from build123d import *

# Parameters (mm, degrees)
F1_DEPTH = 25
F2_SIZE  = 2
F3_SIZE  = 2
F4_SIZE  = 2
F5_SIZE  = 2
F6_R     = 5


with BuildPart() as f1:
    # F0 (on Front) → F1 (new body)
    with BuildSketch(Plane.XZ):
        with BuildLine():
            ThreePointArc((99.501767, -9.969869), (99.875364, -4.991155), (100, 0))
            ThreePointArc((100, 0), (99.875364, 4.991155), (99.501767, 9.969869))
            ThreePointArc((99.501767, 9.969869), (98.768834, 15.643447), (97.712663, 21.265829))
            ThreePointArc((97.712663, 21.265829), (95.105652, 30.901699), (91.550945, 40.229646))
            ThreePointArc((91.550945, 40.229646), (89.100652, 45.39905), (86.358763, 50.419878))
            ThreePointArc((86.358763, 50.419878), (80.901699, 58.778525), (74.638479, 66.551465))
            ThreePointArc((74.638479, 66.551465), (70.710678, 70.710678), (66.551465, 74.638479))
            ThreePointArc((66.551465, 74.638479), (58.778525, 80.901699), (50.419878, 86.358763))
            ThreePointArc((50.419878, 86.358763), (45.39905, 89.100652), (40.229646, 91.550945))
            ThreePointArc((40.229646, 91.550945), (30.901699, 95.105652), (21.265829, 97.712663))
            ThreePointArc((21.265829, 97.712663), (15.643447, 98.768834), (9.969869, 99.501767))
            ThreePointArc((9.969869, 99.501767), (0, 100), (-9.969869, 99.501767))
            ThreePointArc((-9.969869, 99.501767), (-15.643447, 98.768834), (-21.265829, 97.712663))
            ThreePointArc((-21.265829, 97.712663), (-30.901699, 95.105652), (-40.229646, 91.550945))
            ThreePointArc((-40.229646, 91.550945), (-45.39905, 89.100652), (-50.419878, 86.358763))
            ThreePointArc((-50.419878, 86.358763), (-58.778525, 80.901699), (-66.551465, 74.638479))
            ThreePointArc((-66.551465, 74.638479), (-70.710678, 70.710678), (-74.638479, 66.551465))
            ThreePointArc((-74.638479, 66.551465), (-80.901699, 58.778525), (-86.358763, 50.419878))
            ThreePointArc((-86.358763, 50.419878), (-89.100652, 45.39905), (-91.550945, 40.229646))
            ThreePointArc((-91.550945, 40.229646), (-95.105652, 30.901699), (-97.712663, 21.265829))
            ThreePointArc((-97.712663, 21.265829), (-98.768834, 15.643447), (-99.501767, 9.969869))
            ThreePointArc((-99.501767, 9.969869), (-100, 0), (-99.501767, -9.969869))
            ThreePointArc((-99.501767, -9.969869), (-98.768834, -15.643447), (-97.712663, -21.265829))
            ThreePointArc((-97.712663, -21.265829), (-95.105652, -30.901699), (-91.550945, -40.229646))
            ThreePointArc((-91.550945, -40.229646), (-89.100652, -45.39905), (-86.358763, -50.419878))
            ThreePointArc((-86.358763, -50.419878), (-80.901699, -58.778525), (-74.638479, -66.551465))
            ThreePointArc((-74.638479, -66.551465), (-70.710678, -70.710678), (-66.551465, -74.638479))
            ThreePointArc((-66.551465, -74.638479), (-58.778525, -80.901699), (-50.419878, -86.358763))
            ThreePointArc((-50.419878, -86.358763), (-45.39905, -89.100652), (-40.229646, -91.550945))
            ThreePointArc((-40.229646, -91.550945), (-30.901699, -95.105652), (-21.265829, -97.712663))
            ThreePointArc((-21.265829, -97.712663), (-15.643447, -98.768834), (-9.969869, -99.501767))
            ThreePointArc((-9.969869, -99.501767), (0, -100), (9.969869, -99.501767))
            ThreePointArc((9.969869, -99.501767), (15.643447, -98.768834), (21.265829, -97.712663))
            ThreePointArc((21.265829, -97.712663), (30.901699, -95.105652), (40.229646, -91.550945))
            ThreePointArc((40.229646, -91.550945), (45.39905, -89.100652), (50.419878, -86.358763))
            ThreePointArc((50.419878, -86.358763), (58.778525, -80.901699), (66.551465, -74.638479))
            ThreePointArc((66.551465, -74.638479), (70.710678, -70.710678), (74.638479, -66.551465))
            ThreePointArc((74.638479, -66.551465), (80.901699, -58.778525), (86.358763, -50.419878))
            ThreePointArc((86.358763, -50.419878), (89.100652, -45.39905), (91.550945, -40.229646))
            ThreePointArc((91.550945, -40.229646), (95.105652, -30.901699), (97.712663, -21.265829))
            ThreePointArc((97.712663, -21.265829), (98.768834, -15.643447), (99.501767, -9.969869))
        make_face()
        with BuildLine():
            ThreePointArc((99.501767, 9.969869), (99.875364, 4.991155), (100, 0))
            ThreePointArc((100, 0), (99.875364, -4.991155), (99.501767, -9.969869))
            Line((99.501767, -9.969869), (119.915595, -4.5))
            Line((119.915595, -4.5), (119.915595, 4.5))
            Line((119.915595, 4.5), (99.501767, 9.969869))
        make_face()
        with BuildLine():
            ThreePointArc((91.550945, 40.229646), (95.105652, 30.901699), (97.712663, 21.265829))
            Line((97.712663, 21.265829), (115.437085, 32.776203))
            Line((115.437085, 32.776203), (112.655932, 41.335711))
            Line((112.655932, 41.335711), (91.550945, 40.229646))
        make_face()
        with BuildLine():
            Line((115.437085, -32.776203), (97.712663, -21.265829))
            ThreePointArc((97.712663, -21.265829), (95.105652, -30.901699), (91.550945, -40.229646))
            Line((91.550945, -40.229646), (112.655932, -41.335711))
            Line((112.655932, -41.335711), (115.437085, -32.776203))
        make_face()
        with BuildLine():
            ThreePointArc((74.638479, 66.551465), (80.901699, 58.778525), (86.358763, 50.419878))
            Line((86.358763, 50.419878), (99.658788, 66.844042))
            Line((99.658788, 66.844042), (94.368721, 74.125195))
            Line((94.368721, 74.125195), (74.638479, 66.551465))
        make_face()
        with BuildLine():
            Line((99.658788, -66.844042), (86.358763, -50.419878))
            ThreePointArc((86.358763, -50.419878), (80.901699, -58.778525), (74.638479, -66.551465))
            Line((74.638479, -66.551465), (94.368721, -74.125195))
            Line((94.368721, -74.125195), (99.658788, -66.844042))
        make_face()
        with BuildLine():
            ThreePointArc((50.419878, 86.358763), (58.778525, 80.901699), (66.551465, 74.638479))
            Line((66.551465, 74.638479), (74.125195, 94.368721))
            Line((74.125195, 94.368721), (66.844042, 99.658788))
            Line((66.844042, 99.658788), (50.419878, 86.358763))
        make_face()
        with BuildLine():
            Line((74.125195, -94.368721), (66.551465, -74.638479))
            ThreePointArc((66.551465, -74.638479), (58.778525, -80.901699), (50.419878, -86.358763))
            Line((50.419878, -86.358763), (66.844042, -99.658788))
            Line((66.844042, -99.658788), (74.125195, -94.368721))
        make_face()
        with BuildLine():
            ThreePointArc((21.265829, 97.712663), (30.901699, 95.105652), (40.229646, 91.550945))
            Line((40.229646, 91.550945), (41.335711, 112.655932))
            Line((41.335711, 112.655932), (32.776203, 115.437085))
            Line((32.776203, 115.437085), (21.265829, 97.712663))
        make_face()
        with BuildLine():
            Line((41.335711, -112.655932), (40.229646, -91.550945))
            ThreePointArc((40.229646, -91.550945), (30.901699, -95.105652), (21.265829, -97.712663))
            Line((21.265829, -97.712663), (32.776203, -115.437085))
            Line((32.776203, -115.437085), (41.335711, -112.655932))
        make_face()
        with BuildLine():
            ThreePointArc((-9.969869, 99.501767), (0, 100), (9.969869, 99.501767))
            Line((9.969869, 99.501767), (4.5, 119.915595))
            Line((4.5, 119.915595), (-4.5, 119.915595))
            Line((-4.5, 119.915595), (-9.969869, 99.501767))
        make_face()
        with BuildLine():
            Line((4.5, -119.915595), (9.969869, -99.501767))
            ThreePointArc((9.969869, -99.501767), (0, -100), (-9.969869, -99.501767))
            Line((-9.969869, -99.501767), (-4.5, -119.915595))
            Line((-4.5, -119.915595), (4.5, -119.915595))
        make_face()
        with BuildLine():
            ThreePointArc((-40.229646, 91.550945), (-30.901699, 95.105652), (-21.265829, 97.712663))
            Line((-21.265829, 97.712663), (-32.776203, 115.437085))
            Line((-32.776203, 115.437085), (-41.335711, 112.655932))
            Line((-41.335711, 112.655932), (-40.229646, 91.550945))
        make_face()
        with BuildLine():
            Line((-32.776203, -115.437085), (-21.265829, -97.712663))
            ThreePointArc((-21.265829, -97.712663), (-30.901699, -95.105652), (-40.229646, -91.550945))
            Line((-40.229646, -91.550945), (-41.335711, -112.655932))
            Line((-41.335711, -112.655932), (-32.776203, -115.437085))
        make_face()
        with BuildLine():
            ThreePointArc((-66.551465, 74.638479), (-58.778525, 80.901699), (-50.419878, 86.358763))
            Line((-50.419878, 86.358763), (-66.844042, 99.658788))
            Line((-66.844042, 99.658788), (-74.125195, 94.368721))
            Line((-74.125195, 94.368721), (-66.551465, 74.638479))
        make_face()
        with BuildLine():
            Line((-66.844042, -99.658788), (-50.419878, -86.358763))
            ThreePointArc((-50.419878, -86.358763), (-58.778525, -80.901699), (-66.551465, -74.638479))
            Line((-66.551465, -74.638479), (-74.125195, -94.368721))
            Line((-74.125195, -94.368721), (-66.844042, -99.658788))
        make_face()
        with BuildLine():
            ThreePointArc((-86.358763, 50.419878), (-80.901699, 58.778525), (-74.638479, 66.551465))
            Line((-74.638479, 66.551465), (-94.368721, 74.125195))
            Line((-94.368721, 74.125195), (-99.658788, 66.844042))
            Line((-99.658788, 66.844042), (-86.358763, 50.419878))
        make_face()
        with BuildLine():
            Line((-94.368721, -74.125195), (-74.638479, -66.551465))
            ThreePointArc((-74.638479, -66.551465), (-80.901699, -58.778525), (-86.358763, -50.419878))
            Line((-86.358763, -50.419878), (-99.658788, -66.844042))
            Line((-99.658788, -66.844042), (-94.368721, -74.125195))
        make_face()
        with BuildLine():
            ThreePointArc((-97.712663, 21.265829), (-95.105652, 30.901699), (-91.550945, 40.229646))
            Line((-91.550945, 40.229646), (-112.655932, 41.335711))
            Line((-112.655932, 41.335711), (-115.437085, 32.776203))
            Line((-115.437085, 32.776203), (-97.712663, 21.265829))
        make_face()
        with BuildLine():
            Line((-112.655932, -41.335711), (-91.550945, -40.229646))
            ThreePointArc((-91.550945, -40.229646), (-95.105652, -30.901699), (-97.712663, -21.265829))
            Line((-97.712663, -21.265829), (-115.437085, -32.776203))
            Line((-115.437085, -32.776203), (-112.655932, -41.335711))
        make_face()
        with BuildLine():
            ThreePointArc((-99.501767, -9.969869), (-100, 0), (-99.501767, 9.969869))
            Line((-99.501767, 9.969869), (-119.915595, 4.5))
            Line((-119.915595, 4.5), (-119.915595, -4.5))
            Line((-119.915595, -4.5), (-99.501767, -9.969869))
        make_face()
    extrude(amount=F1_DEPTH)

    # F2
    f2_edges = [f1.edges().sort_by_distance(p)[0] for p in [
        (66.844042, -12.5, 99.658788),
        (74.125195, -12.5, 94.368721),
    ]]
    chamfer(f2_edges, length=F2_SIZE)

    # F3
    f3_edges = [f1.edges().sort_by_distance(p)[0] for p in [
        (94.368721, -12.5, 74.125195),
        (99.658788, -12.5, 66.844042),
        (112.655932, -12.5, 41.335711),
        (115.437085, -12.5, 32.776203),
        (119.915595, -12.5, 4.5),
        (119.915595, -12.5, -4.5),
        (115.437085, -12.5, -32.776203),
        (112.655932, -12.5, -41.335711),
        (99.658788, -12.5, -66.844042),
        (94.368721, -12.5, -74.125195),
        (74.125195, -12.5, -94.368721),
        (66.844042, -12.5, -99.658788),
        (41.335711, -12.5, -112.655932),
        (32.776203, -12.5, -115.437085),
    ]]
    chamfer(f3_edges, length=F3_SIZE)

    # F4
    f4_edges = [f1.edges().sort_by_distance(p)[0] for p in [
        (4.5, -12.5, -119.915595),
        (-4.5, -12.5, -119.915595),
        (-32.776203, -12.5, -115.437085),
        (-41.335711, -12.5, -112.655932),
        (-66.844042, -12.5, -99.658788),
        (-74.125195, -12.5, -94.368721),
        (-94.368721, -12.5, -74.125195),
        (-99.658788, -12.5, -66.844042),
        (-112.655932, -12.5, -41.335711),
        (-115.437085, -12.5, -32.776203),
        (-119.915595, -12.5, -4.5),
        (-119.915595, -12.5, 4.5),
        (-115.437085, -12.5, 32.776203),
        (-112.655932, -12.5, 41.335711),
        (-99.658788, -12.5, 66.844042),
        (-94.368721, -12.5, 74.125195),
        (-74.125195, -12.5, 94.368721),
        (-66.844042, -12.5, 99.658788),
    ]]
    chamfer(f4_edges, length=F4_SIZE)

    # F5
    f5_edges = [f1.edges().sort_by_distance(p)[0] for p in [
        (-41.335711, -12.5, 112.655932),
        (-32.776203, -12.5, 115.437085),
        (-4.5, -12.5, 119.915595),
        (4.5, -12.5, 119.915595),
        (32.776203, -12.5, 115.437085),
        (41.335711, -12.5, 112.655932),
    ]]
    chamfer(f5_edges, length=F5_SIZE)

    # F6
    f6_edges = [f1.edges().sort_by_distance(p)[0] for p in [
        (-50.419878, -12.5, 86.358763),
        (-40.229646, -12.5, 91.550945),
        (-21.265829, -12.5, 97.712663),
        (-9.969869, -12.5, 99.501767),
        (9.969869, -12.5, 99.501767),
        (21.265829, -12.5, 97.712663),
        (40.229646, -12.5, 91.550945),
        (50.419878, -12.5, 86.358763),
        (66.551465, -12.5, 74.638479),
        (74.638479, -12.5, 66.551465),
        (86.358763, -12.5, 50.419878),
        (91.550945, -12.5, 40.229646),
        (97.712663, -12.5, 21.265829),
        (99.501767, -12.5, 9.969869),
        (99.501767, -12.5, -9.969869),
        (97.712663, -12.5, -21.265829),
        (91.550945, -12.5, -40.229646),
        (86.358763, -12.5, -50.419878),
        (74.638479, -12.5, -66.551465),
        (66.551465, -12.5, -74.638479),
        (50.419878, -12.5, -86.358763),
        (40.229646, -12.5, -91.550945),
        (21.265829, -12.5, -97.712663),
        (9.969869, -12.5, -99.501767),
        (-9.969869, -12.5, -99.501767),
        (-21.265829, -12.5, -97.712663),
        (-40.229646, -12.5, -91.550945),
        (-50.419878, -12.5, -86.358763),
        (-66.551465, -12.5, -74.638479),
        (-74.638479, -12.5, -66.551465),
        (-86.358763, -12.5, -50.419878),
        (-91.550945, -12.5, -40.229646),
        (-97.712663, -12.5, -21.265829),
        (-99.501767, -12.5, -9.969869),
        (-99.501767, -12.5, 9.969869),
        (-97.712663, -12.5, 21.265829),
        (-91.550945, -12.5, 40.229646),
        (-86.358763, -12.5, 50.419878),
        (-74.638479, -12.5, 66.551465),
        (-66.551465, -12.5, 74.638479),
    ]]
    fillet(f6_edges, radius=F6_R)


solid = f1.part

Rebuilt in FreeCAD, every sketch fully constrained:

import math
import FreeCAD as App
import Part
import Sketcher

V = App.Vector
Q = App.Units.Quantity


def edges_at(feature, points):
    """Names of the edges that pass closest to the given points."""
    edges = feature.Shape.Edges
    near = lambda p: min(range(len(edges)), key=lambda i: edges[i].distToShape(Part.Vertex(*p))[0])
    return sorted({f"Edge{near(p) + 1}" for p in points})

doc = App.newDocument("Part")
params = doc.addObject("Spreadsheet::Sheet", "Params")
for row, (alias, value) in enumerate([
    ("sketch1_width", "9 mm"),
    ("sketch1_length", "8.999999 mm"),
    ("pad1_length", "25 mm"),
    ("chamfer_size", "2 mm"),
    ("chamfer2_size", "2 mm"),
    ("chamfer3_size", "2 mm"),
    ("chamfer4_size", "2 mm"),
    ("fillet_radius", "5 mm"),
], start=1):
    params.set(f"A{row}", alias)
    params.set(f"B{row}", "=" + value)
    params.setAlias(f"B{row}", alias)

body = doc.addObject("PartDesign::Body", "Body")

# Sketch on XZ plane
sketch1 = doc.addObject("Sketcher::SketchObject", "Sketch")
body.addObject(sketch1)
sketch1.AttachmentSupport = (doc.XZ_Plane, [""])
sketch1.MapMode = "FlatFace"
sketch1.addGeometry(Part.ArcOfCircle(Part.Circle(V(0.000135, 0.000024, 0), V(0, 0, 1), 99.999863), math.radians(5.721814), math.radians(12.278183)), False)
sketch1.addGeometry(Part.LineSegment(V(97.712663, 21.265829, 0), V(115.437085, 32.776203, 0)), False)
sketch1.addGeometry(Part.LineSegment(V(115.437085, 32.776203, 0), V(112.655932, 41.335711, 0)), False)
sketch1.addGeometry(Part.LineSegment(V(112.655932, 41.335711, 0), V(91.550945, 40.229646, 0)), False)
sketch1.addGeometry(Part.ArcOfCircle(Part.Circle(V(-0.000188, -0.000091, 0), V(0, 0, 1), 100.000208), math.radians(23.721824), math.radians(30.278171)), False)
sketch1.addGeometry(Part.LineSegment(V(86.358763, 50.419878, 0), V(99.658788, 66.844042, 0)), False)
sketch1.addGeometry(Part.LineSegment(V(99.658788, 66.844042, 0), V(94.368721, 74.125195, 0)), False)
sketch1.addGeometry(Part.LineSegment(V(94.368721, 74.125195, 0), V(74.638479, 66.551465, 0)), False)
sketch1.addGeometry(Part.ArcOfCircle(Part.Circle(V(-0.000161, -0.000161, 0), V(0, 0, 1), 100.000228), math.radians(41.721827), math.radians(48.278173)), False)
sketch1.addGeometry(Part.LineSegment(V(66.551465, 74.638479, 0), V(74.125195, 94.368721, 0)), False)
sketch1.addGeometry(Part.LineSegment(V(74.125195, 94.368721, 0), V(66.844042, 99.658788, 0)), False)
sketch1.addGeometry(Part.LineSegment(V(66.844042, 99.658788, 0), V(50.419878, 86.358763, 0)), False)
sketch1.addGeometry(Part.ArcOfCircle(Part.Circle(V(-0.000091, -0.000188, 0), V(0, 0, 1), 100.000208), math.radians(59.721829), math.radians(66.278176)), False)
sketch1.addGeometry(Part.LineSegment(V(40.229646, 91.550945, 0), V(41.335711, 112.655932, 0)), False)
sketch1.addGeometry(Part.LineSegment(V(41.335711, 112.655932, 0), V(32.776203, 115.437085, 0)), False)
sketch1.addGeometry(Part.LineSegment(V(32.776203, 115.437085, 0), V(21.265829, 97.712663, 0)), False)
sketch1.addGeometry(Part.ArcOfCircle(Part.Circle(V(0.000024, 0.000135, 0), V(0, 0, 1), 99.999863), math.radians(77.721817), math.radians(84.278186)), False)
sketch1.addGeometry(Part.LineSegment(V(9.969869, 99.501767, 0), V(4.5, 119.915595, 0)), False)
sketch1.addGeometry(Part.LineSegment(V(4.5, 119.915595, 0), V(-4.5, 119.915595, 0)), False)
sketch1.addGeometry(Part.LineSegment(V(-4.5, 119.915595, 0), V(-9.969869, 99.501767, 0)), False)
sketch1.addGeometry(Part.ArcOfCircle(Part.Circle(V(-0.000024, 0.000135, 0), V(0, 0, 1), 99.999863), math.radians(95.721814), math.radians(102.278183)), False)
sketch1.addGeometry(Part.LineSegment(V(-21.265829, 97.712663, 0), V(-32.776203, 115.437085, 0)), False)
sketch1.addGeometry(Part.LineSegment(V(-32.776203, 115.437085, 0), V(-41.335711, 112.655932, 0)), False)
sketch1.addGeometry(Part.LineSegment(V(-41.335711, 112.655932, 0), V(-40.229646, 91.550945, 0)), False)
sketch1.addGeometry(Part.ArcOfCircle(Part.Circle(V(0.000091, -0.000188, 0), V(0, 0, 1), 100.000208), math.radians(113.721824), math.radians(120.278171)), False)
sketch1.addGeometry(Part.LineSegment(V(-50.419878, 86.358763, 0), V(-66.844042, 99.658788, 0)), False)
sketch1.addGeometry(Part.LineSegment(V(-66.844042, 99.658788, 0), V(-74.125195, 94.368721, 0)), False)
sketch1.addGeometry(Part.LineSegment(V(-74.125195, 94.368721, 0), V(-66.551465, 74.638479, 0)), False)
sketch1.addGeometry(Part.ArcOfCircle(Part.Circle(V(0.000161, -0.000161, 0), V(0, 0, 1), 100.000228), math.radians(131.721827), math.radians(138.278173)), False)
sketch1.addGeometry(Part.LineSegment(V(-74.638479, 66.551465, 0), V(-94.368721, 74.125195, 0)), False)
sketch1.addGeometry(Part.LineSegment(V(-94.368721, 74.125195, 0), V(-99.658788, 66.844042, 0)), False)
sketch1.addGeometry(Part.LineSegment(V(-99.658788, 66.844042, 0), V(-86.358763, 50.419878, 0)), False)
sketch1.addGeometry(Part.ArcOfCircle(Part.Circle(V(0.000188, -0.000091, 0), V(0, 0, 1), 100.000208), math.radians(149.721829), math.radians(156.278176)), False)
sketch1.addGeometry(Part.LineSegment(V(-91.550945, 40.229646, 0), V(-112.655932, 41.335711, 0)), False)
sketch1.addGeometry(Part.LineSegment(V(-112.655932, 41.335711, 0), V(-115.437085, 32.776203, 0)), False)
sketch1.addGeometry(Part.LineSegment(V(-115.437085, 32.776203, 0), V(-97.712663, 21.265829, 0)), False)
sketch1.addGeometry(Part.ArcOfCircle(Part.Circle(V(-0.000135, 0.000024, 0), V(0, 0, 1), 99.999863), math.radians(167.721817), math.radians(174.278186)), False)
sketch1.addGeometry(Part.LineSegment(V(-99.501767, 9.969869, 0), V(-119.915595, 4.5, 0)), False)
sketch1.addGeometry(Part.LineSegment(V(-119.915595, 4.5, 0), V(-119.915595, -4.5, 0)), False)
sketch1.addGeometry(Part.LineSegment(V(-119.915595, -4.5, 0), V(-99.501767, -9.969869, 0)), False)
sketch1.addGeometry(Part.ArcOfCircle(Part.Circle(V(-0.000135, -0.000024, 0), V(0, 0, 1), 99.999863), math.radians(-174.278186), math.radians(-167.721817)), False)
sketch1.addGeometry(Part.LineSegment(V(-97.712663, -21.265829, 0), V(-115.437085, -32.776203, 0)), False)
sketch1.addGeometry(Part.LineSegment(V(-115.437085, -32.776203, 0), V(-112.655932, -41.335711, 0)), False)
sketch1.addGeometry(Part.LineSegment(V(-112.655932, -41.335711, 0), V(-91.550945, -40.229646, 0)), False)
sketch1.addGeometry(Part.ArcOfCircle(Part.Circle(V(0.000188, 0.000091, 0), V(0, 0, 1), 100.000208), math.radians(-156.278176), math.radians(-149.721829)), False)
sketch1.addGeometry(Part.LineSegment(V(-86.358763, -50.419878, 0), V(-99.658788, -66.844042, 0)), False)
sketch1.addGeometry(Part.LineSegment(V(-99.658788, -66.844042, 0), V(-94.368721, -74.125195, 0)), False)
sketch1.addGeometry(Part.LineSegment(V(-94.368721, -74.125195, 0), V(-74.638479, -66.551465, 0)), False)
sketch1.addGeometry(Part.ArcOfCircle(Part.Circle(V(0.000161, 0.000161, 0), V(0, 0, 1), 100.000228), math.radians(-138.278173), math.radians(-131.721827)), False)
sketch1.addGeometry(Part.LineSegment(V(-66.551465, -74.638479, 0), V(-74.125195, -94.368721, 0)), False)
sketch1.addGeometry(Part.LineSegment(V(-74.125195, -94.368721, 0), V(-66.844042, -99.658788, 0)), False)
sketch1.addGeometry(Part.LineSegment(V(-66.844042, -99.658788, 0), V(-50.419878, -86.358763, 0)), False)
sketch1.addGeometry(Part.ArcOfCircle(Part.Circle(V(0.000091, 0.000188, 0), V(0, 0, 1), 100.000208), math.radians(-120.278171), math.radians(-113.721824)), False)
sketch1.addGeometry(Part.LineSegment(V(-40.229646, -91.550945, 0), V(-41.335711, -112.655932, 0)), False)
sketch1.addGeometry(Part.LineSegment(V(-41.335711, -112.655932, 0), V(-32.776203, -115.437085, 0)), False)
sketch1.addGeometry(Part.LineSegment(V(-32.776203, -115.437085, 0), V(-21.265829, -97.712663, 0)), False)
sketch1.addGeometry(Part.ArcOfCircle(Part.Circle(V(-0.000024, -0.000135, 0), V(0, 0, 1), 99.999863), math.radians(-102.278183), math.radians(-95.721814)), False)
sketch1.addGeometry(Part.LineSegment(V(-9.969869, -99.501767, 0), V(-4.5, -119.915595, 0)), False)
sketch1.addGeometry(Part.LineSegment(V(-4.5, -119.915595, 0), V(4.5, -119.915595, 0)), False)
sketch1.addGeometry(Part.LineSegment(V(4.5, -119.915595, 0), V(9.969869, -99.501767, 0)), False)
sketch1.addGeometry(Part.ArcOfCircle(Part.Circle(V(0.000024, -0.000135, 0), V(0, 0, 1), 99.999863), math.radians(-84.278186), math.radians(-77.721817)), False)
sketch1.addGeometry(Part.LineSegment(V(21.265829, -97.712663, 0), V(32.776203, -115.437085, 0)), False)
sketch1.addGeometry(Part.LineSegment(V(32.776203, -115.437085, 0), V(41.335711, -112.655932, 0)), False)
sketch1.addGeometry(Part.LineSegment(V(41.335711, -112.655932, 0), V(40.229646, -91.550945, 0)), False)
sketch1.addGeometry(Part.ArcOfCircle(Part.Circle(V(-0.000091, 0.000188, 0), V(0, 0, 1), 100.000208), math.radians(-66.278176), math.radians(-59.721829)), False)
sketch1.addGeometry(Part.LineSegment(V(50.419878, -86.358763, 0), V(66.844042, -99.658788, 0)), False)
sketch1.addGeometry(Part.LineSegment(V(66.844042, -99.658788, 0), V(74.125195, -94.368721, 0)), False)
sketch1.addGeometry(Part.LineSegment(V(74.125195, -94.368721, 0), V(66.551465, -74.638479, 0)), False)
sketch1.addGeometry(Part.ArcOfCircle(Part.Circle(V(-0.000161, 0.000161, 0), V(0, 0, 1), 100.000228), math.radians(-48.278173), math.radians(-41.721827)), False)
sketch1.addGeometry(Part.LineSegment(V(74.638479, -66.551465, 0), V(94.368721, -74.125195, 0)), False)
sketch1.addGeometry(Part.LineSegment(V(94.368721, -74.125195, 0), V(99.658788, -66.844042, 0)), False)
sketch1.addGeometry(Part.LineSegment(V(99.658788, -66.844042, 0), V(86.358763, -50.419878, 0)), False)
sketch1.addGeometry(Part.ArcOfCircle(Part.Circle(V(-0.000188, 0.000091, 0), V(0, 0, 1), 100.000208), math.radians(-30.278171), math.radians(-23.721824)), False)
sketch1.addGeometry(Part.LineSegment(V(91.550945, -40.229646, 0), V(112.655932, -41.335711, 0)), False)
sketch1.addGeometry(Part.LineSegment(V(112.655932, -41.335711, 0), V(115.437085, -32.776203, 0)), False)
sketch1.addGeometry(Part.LineSegment(V(115.437085, -32.776203, 0), V(97.712663, -21.265829, 0)), False)
sketch1.addGeometry(Part.ArcOfCircle(Part.Circle(V(0.000135, -0.000024, 0), V(0, 0, 1), 99.999863), math.radians(-12.278183), math.radians(-5.721814)), False)
sketch1.addGeometry(Part.LineSegment(V(99.501767, -9.969869, 0), V(119.915595, -4.5, 0)), False)
sketch1.addGeometry(Part.LineSegment(V(119.915595, -4.5, 0), V(119.915595, 4.5, 0)), False)
sketch1.addGeometry(Part.LineSegment(V(119.915595, 4.5, 0), V(99.501767, 9.969869, 0)), False)
sketch1.addConstraint(Sketcher.Constraint("Coincident", 0, 2, 1, 1))
sketch1.addConstraint(Sketcher.Constraint("Coincident", 1, 2, 2, 1))
sketch1.addConstraint(Sketcher.Constraint("Coincident", 2, 2, 3, 1))
sketch1.addConstraint(Sketcher.Constraint("Coincident", 3, 2, 4, 1))
sketch1.addConstraint(Sketcher.Constraint("Coincident", 4, 2, 5, 1))
sketch1.addConstraint(Sketcher.Constraint("Coincident", 5, 2, 6, 1))
sketch1.addConstraint(Sketcher.Constraint("Coincident", 6, 2, 7, 1))
sketch1.addConstraint(Sketcher.Constraint("Coincident", 7, 2, 8, 1))
sketch1.addConstraint(Sketcher.Constraint("Coincident", 8, 2, 9, 1))
sketch1.addConstraint(Sketcher.Constraint("Coincident", 9, 2, 10, 1))
sketch1.addConstraint(Sketcher.Constraint("Coincident", 10, 2, 11, 1))
sketch1.addConstraint(Sketcher.Constraint("Coincident", 11, 2, 12, 1))
sketch1.addConstraint(Sketcher.Constraint("Coincident", 12, 2, 13, 1))
sketch1.addConstraint(Sketcher.Constraint("Coincident", 13, 2, 14, 1))
sketch1.addConstraint(Sketcher.Constraint("Coincident", 14, 2, 15, 1))
sketch1.addConstraint(Sketcher.Constraint("Coincident", 15, 2, 16, 1))
sketch1.addConstraint(Sketcher.Constraint("Coincident", 16, 2, 17, 1))
sketch1.addConstraint(Sketcher.Constraint("Coincident", 17, 2, 18, 1))
sketch1.addConstraint(Sketcher.Constraint("Coincident", 18, 2, 19, 1))
sketch1.addConstraint(Sketcher.Constraint("Coincident", 19, 2, 20, 1))
sketch1.addConstraint(Sketcher.Constraint("Coincident", 20, 2, 21, 1))
sketch1.addConstraint(Sketcher.Constraint("Coincident", 21, 2, 22, 1))
sketch1.addConstraint(Sketcher.Constraint("Coincident", 22, 2, 23, 1))
sketch1.addConstraint(Sketcher.Constraint("Coincident", 23, 2, 24, 1))
sketch1.addConstraint(Sketcher.Constraint("Coincident", 24, 2, 25, 1))
sketch1.addConstraint(Sketcher.Constraint("Coincident", 25, 2, 26, 1))
sketch1.addConstraint(Sketcher.Constraint("Coincident", 26, 2, 27, 1))
sketch1.addConstraint(Sketcher.Constraint("Coincident", 27, 2, 28, 1))
sketch1.addConstraint(Sketcher.Constraint("Coincident", 28, 2, 29, 1))
sketch1.addConstraint(Sketcher.Constraint("Coincident", 29, 2, 30, 1))
sketch1.addConstraint(Sketcher.Constraint("Coincident", 30, 2, 31, 1))
sketch1.addConstraint(Sketcher.Constraint("Coincident", 31, 2, 32, 1))
sketch1.addConstraint(Sketcher.Constraint("Coincident", 32, 2, 33, 1))
sketch1.addConstraint(Sketcher.Constraint("Coincident", 33, 2, 34, 1))
sketch1.addConstraint(Sketcher.Constraint("Coincident", 34, 2, 35, 1))
sketch1.addConstraint(Sketcher.Constraint("Coincident", 35, 2, 36, 1))
sketch1.addConstraint(Sketcher.Constraint("Coincident", 36, 2, 37, 1))
sketch1.addConstraint(Sketcher.Constraint("Coincident", 37, 2, 38, 1))
sketch1.addConstraint(Sketcher.Constraint("Coincident", 38, 2, 39, 1))
sketch1.addConstraint(Sketcher.Constraint("Coincident", 39, 2, 40, 1))
sketch1.addConstraint(Sketcher.Constraint("Coincident", 40, 2, 41, 1))
sketch1.addConstraint(Sketcher.Constraint("Coincident", 41, 2, 42, 1))
sketch1.addConstraint(Sketcher.Constraint("Coincident", 42, 2, 43, 1))
sketch1.addConstraint(Sketcher.Constraint("Coincident", 43, 2, 44, 1))
sketch1.addConstraint(Sketcher.Constraint("Coincident", 44, 2, 45, 1))
sketch1.addConstraint(Sketcher.Constraint("Coincident", 45, 2, 46, 1))
sketch1.addConstraint(Sketcher.Constraint("Coincident", 46, 2, 47, 1))
sketch1.addConstraint(Sketcher.Constraint("Coincident", 47, 2, 48, 1))
sketch1.addConstraint(Sketcher.Constraint("Coincident", 48, 2, 49, 1))
sketch1.addConstraint(Sketcher.Constraint("Coincident", 49, 2, 50, 1))
sketch1.addConstraint(Sketcher.Constraint("Coincident", 50, 2, 51, 1))
sketch1.addConstraint(Sketcher.Constraint("Coincident", 51, 2, 52, 1))
sketch1.addConstraint(Sketcher.Constraint("Coincident", 52, 2, 53, 1))
sketch1.addConstraint(Sketcher.Constraint("Coincident", 53, 2, 54, 1))
sketch1.addConstraint(Sketcher.Constraint("Coincident", 54, 2, 55, 1))
sketch1.addConstraint(Sketcher.Constraint("Coincident", 55, 2, 56, 1))
sketch1.addConstraint(Sketcher.Constraint("Coincident", 56, 2, 57, 1))
sketch1.addConstraint(Sketcher.Constraint("Coincident", 57, 2, 58, 1))
sketch1.addConstraint(Sketcher.Constraint("Coincident", 58, 2, 59, 1))
sketch1.addConstraint(Sketcher.Constraint("Coincident", 59, 2, 60, 1))
sketch1.addConstraint(Sketcher.Constraint("Coincident", 60, 2, 61, 1))
sketch1.addConstraint(Sketcher.Constraint("Coincident", 61, 2, 62, 1))
sketch1.addConstraint(Sketcher.Constraint("Coincident", 62, 2, 63, 1))
sketch1.addConstraint(Sketcher.Constraint("Coincident", 63, 2, 64, 1))
sketch1.addConstraint(Sketcher.Constraint("Coincident", 64, 2, 65, 1))
sketch1.addConstraint(Sketcher.Constraint("Coincident", 65, 2, 66, 1))
sketch1.addConstraint(Sketcher.Constraint("Coincident", 66, 2, 67, 1))
sketch1.addConstraint(Sketcher.Constraint("Coincident", 67, 2, 68, 1))
sketch1.addConstraint(Sketcher.Constraint("Coincident", 68, 2, 69, 1))
sketch1.addConstraint(Sketcher.Constraint("Coincident", 69, 2, 70, 1))
sketch1.addConstraint(Sketcher.Constraint("Coincident", 70, 2, 71, 1))
sketch1.addConstraint(Sketcher.Constraint("Coincident", 71, 2, 72, 1))
sketch1.addConstraint(Sketcher.Constraint("Coincident", 72, 2, 73, 1))
sketch1.addConstraint(Sketcher.Constraint("Coincident", 73, 2, 74, 1))
sketch1.addConstraint(Sketcher.Constraint("Coincident", 74, 2, 75, 1))
sketch1.addConstraint(Sketcher.Constraint("Coincident", 75, 2, 76, 1))
sketch1.addConstraint(Sketcher.Constraint("Coincident", 76, 2, 77, 1))
sketch1.addConstraint(Sketcher.Constraint("Coincident", 77, 2, 78, 1))
sketch1.addConstraint(Sketcher.Constraint("Coincident", 78, 2, 79, 1))
sketch1.addConstraint(Sketcher.Constraint("Coincident", 79, 2, 0, 1))
sketch1.addConstraint(Sketcher.Constraint("Horizontal", 18))
sketch1.addConstraint(Sketcher.Constraint("Vertical", 38))
sketch1.addConstraint(Sketcher.Constraint("Horizontal", 58))
sketch1.addConstraint(Sketcher.Constraint("Vertical", 78))
sketch1.addConstraint(Sketcher.Constraint("Equal", 4, 12))
sketch1.addConstraint(Sketcher.Constraint("Equal", 0, 16))
sketch1.addConstraint(Sketcher.Constraint("Equal", 16, 20))
sketch1.addConstraint(Sketcher.Constraint("Equal", 12, 24))
sketch1.addConstraint(Sketcher.Constraint("Equal", 8, 28))
sketch1.addConstraint(Sketcher.Constraint("Equal", 24, 32))
sketch1.addConstraint(Sketcher.Constraint("Equal", 20, 36))
sketch1.addConstraint(Sketcher.Constraint("Equal", 36, 40))
sketch1.addConstraint(Sketcher.Constraint("Equal", 32, 44))
sketch1.addConstraint(Sketcher.Constraint("Equal", 28, 48))
sketch1.addConstraint(Sketcher.Constraint("Equal", 44, 52))
sketch1.addConstraint(Sketcher.Constraint("Equal", 40, 56))
sketch1.addConstraint(Sketcher.Constraint("Equal", 56, 60))
sketch1.addConstraint(Sketcher.Constraint("Equal", 52, 64))
sketch1.addConstraint(Sketcher.Constraint("Equal", 48, 68))
sketch1.addConstraint(Sketcher.Constraint("Equal", 64, 72))
sketch1.addConstraint(Sketcher.Constraint("Equal", 60, 76))
sketch1.addConstraint(Sketcher.Constraint("Symmetric", 0, 3, 40, 3, -1, 1))
sketch1.addConstraint(Sketcher.Constraint("Symmetric", 4, 3, 44, 3, -1, 1))
sketch1.addConstraint(Sketcher.Constraint("Symmetric", 8, 3, 48, 3, -1, 1))
sketch1.addConstraint(Sketcher.Constraint("Symmetric", 12, 3, 52, 3, -1, 1))
sketch1.addConstraint(Sketcher.Constraint("Symmetric", 16, 3, 56, 3, -1, 1))
sketch1.addConstraint(Sketcher.Constraint("Symmetric", 20, 3, 60, 3, -1, 1))
sketch1.addConstraint(Sketcher.Constraint("Symmetric", 24, 3, 64, 3, -1, 1))
sketch1.addConstraint(Sketcher.Constraint("Symmetric", 28, 3, 68, 3, -1, 1))
sketch1.addConstraint(Sketcher.Constraint("Symmetric", 32, 3, 72, 3, -1, 1))
sketch1.addConstraint(Sketcher.Constraint("Symmetric", 36, 3, 76, 3, -1, 1))
sketch1.addConstraint(Sketcher.Constraint("Symmetric", 1, 2, 41, 2, -1, 1))
sketch1.addConstraint(Sketcher.Constraint("Symmetric", 2, 2, 42, 2, -1, 1))
sketch1.addConstraint(Sketcher.Constraint("Symmetric", 5, 2, 45, 2, -1, 1))
sketch1.addConstraint(Sketcher.Constraint("Symmetric", 6, 2, 46, 2, -1, 1))
sketch1.addConstraint(Sketcher.Constraint("Symmetric", 9, 2, 49, 2, -1, 1))
sketch1.addConstraint(Sketcher.Constraint("Symmetric", 10, 2, 50, 2, -1, 1))
sketch1.addConstraint(Sketcher.Constraint("Symmetric", 13, 2, 53, 2, -1, 1))
sketch1.addConstraint(Sketcher.Constraint("Symmetric", 14, 2, 54, 2, -1, 1))
sketch1.addConstraint(Sketcher.Constraint("Symmetric", 17, 2, 57, 2, -1, 1))
sketch1.addConstraint(Sketcher.Constraint("Symmetric", 21, 2, 61, 2, -1, 1))
sketch1.addConstraint(Sketcher.Constraint("Symmetric", 22, 2, 62, 2, -1, 1))
sketch1.addConstraint(Sketcher.Constraint("Symmetric", 25, 2, 65, 2, -1, 1))
sketch1.addConstraint(Sketcher.Constraint("Symmetric", 26, 2, 66, 2, -1, 1))
sketch1.addConstraint(Sketcher.Constraint("Symmetric", 29, 2, 69, 2, -1, 1))
sketch1.addConstraint(Sketcher.Constraint("Symmetric", 30, 2, 70, 2, -1, 1))
sketch1.addConstraint(Sketcher.Constraint("Symmetric", 33, 2, 73, 2, -1, 1))
sketch1.addConstraint(Sketcher.Constraint("Symmetric", 34, 2, 74, 2, -1, 1))
sketch1.addConstraint(Sketcher.Constraint("Symmetric", 37, 2, 77, 2, -1, 1))
sketch1.addConstraint(Sketcher.Constraint("Symmetric", 16, 3, 20, 3, -2))
sketch1.addConstraint(Sketcher.Constraint("Symmetric", 12, 3, 24, 3, -2))
sketch1.addConstraint(Sketcher.Constraint("Symmetric", 8, 3, 28, 3, -2))
sketch1.addConstraint(Sketcher.Constraint("Symmetric", 4, 3, 32, 3, -2))
sketch1.addConstraint(Sketcher.Constraint("Symmetric", 0, 3, 36, 3, -2))
sketch1.addConstraint(Sketcher.Constraint("Symmetric", 14, 2, 21, 2, -2))
sketch1.addConstraint(Sketcher.Constraint("Symmetric", 13, 2, 22, 2, -2))
sketch1.addConstraint(Sketcher.Constraint("Symmetric", 10, 2, 25, 2, -2))
sketch1.addConstraint(Sketcher.Constraint("Symmetric", 9, 2, 26, 2, -2))
sketch1.addConstraint(Sketcher.Constraint("Symmetric", 6, 2, 29, 2, -2))
sketch1.addConstraint(Sketcher.Constraint("Symmetric", 5, 2, 30, 2, -2))
sketch1.addConstraint(Sketcher.Constraint("Symmetric", 2, 2, 33, 2, -2))
sketch1.addConstraint(Sketcher.Constraint("Symmetric", 1, 2, 34, 2, -2))
sketch1.addConstraint(Sketcher.Constraint("Perpendicular", 1, 21))
sketch1.addConstraint(Sketcher.Constraint("Perpendicular", 2, 22))
sketch1.addConstraint(Sketcher.Constraint("Perpendicular", 3, 23))
sketch1.addConstraint(Sketcher.Constraint("Perpendicular", 5, 25))
sketch1.addConstraint(Sketcher.Constraint("Perpendicular", 6, 26))
sketch1.addConstraint(Sketcher.Constraint("Perpendicular", 7, 27))
sketch1.addConstraint(Sketcher.Constraint("Perpendicular", 9, 29))
sketch1.addConstraint(Sketcher.Constraint("Perpendicular", 11, 31))
sketch1.addConstraint(Sketcher.Constraint("Perpendicular", 13, 33))
sketch1.addConstraint(Sketcher.Constraint("Perpendicular", 15, 35))
sketch1.addConstraint(Sketcher.Constraint("Perpendicular", 17, 37))
sketch1.addConstraint(Sketcher.Constraint("Perpendicular", 19, 39))
sketch1.addConstraint(Sketcher.Constraint("Perpendicular", 21, 41))
sketch1.addConstraint(Sketcher.Constraint("Perpendicular", 23, 43))
sketch1.addConstraint(Sketcher.Constraint("Perpendicular", 25, 45))
sketch1.addConstraint(Sketcher.Constraint("Perpendicular", 27, 47))
sketch1.addConstraint(Sketcher.Constraint("Perpendicular", 29, 49))
sketch1.addConstraint(Sketcher.Constraint("Perpendicular", 31, 51))
sketch1.addConstraint(Sketcher.Constraint("Perpendicular", 33, 53))
sketch1.addConstraint(Sketcher.Constraint("Perpendicular", 35, 55))
sketch1.addConstraint(Sketcher.Constraint("Perpendicular", 37, 57))
sketch1.addConstraint(Sketcher.Constraint("Perpendicular", 39, 59))
sketch1.addConstraint(Sketcher.Constraint("Perpendicular", 41, 61))
sketch1.addConstraint(Sketcher.Constraint("Perpendicular", 43, 63))
sketch1.addConstraint(Sketcher.Constraint("Perpendicular", 45, 65))
sketch1.addConstraint(Sketcher.Constraint("Perpendicular", 47, 67))
sketch1.addConstraint(Sketcher.Constraint("Perpendicular", 49, 69))
sketch1.addConstraint(Sketcher.Constraint("Perpendicular", 51, 71))
sketch1.addConstraint(Sketcher.Constraint("Perpendicular", 53, 73))
sketch1.addConstraint(Sketcher.Constraint("Perpendicular", 55, 75))
sketch1.addConstraint(Sketcher.Constraint("Perpendicular", 57, 77))
sketch1.addConstraint(Sketcher.Constraint("Perpendicular", 59, 79))
sketch1.addConstraint(Sketcher.Constraint("Horizontal", 16, 2, 19, 2))
sketch1.addConstraint(Sketcher.Constraint("Horizontal", 15, 2, 20, 2))
sketch1.addConstraint(Sketcher.Constraint("Horizontal", 12, 2, 23, 2))
sketch1.addConstraint(Sketcher.Constraint("Horizontal", 11, 2, 24, 2))
sketch1.addConstraint(Sketcher.Constraint("Horizontal", 8, 2, 27, 2))
sketch1.addConstraint(Sketcher.Constraint("Horizontal", 56, 2, 59, 2))
sketch1.addConstraint(Sketcher.Constraint("Horizontal", 39, 2, 76, 2))
sketch1.addConstraint(Sketcher.Constraint("Horizontal", 38, 2, 77, 2))
sketch1.addConstraint(Sketcher.Constraint("Horizontal", 37, 2, 78, 2))
sketch1.addConstraint(Sketcher.Constraint("Equal", 58, 38))
sketch1.addConstraint(Sketcher.Constraint("Equal", 1, 3))
sketch1.addConstraint(Sketcher.Constraint("Equal", 3, 5))
sketch1.addConstraint(Sketcher.Constraint("Equal", 2, 6))
sketch1.addConstraint(Sketcher.Constraint("Equal", 5, 7))
sketch1.addConstraint(Sketcher.Constraint("Equal", 7, 9))
sketch1.addConstraint(Sketcher.Constraint("Equal", 6, 10))
sketch1.addConstraint(Sketcher.Constraint("Equal", 9, 11))
sketch1.addConstraint(Sketcher.Constraint("Equal", 11, 13))
sketch1.addConstraint(Sketcher.Constraint("Equal", 10, 14))
sketch1.addConstraint(Sketcher.Constraint("Equal", 13, 15))
sketch1.addConstraint(Sketcher.Constraint("Equal", 15, 17))
sketch1.addConstraint(Sketcher.Constraint("Equal", 35, 37))
sketch1.addConstraint(Sketcher.Constraint("DistanceX", 18, 2, 18, 1, Q("9 mm")))
sketch1.addConstraint(Sketcher.Constraint("Angle", 1, Q("32.999999 deg")))
sketch1.addConstraint(Sketcher.Constraint("Angle", 2, Q("108.000002 deg")))
sketch1.addConstraint(Sketcher.Constraint("Angle", 3, Q("-177.000001 deg")))
sketch1.addConstraint(Sketcher.Constraint("Angle", 5, Q("51.000002 deg")))
sketch1.addConstraint(Sketcher.Constraint("Angle", 6, Q("125.999998 deg")))
sketch1.addConstraint(Sketcher.Constraint("Angle", 7, Q("-159.000001 deg")))
sketch1.addConstraint(Sketcher.Constraint("Angle", 17, Q("105.000001 deg")))
sketch1.addConstraint(Sketcher.Constraint("Distance", 2, Q("8.999999 mm")))
sketch1.addConstraint(Sketcher.Constraint("Radius", 4, Q("100.000208 mm")))
sketch1.addConstraint(Sketcher.Constraint("Radius", 0, Q("99.999863 mm")))
sketch1.addConstraint(Sketcher.Constraint("Radius", 8, Q("100.000228 mm")))
sketch1.addConstraint(Sketcher.Constraint("Distance", 1, Q("21.13395 mm")))
sketch1.addConstraint(Sketcher.Constraint("DistanceX", 8, 3, -1, 1, Q("0.000161 mm")))
sketch1.addConstraint(Sketcher.Constraint("DistanceY", 8, 3, -1, 1, Q("0.000161 mm")))
sketch1.addConstraint(Sketcher.Constraint("DistanceY", -1, 1, 2, 2, Q("41.335711 mm")))
sketch1.addConstraint(Sketcher.Constraint("DistanceX", -1, 1, 5, 2, Q("99.658788 mm")))
sketch1.addConstraint(Sketcher.Constraint("DistanceY", -1, 1, 9, 2, Q("94.368721 mm")))
sketch1.addConstraint(Sketcher.Constraint("DistanceX", -1, 1, 13, 2, Q("41.335711 mm")))
sketch1.addConstraint(Sketcher.Constraint("DistanceX", -1, 1, 0, 3, Q("0.000135 mm")))
sketch1.addConstraint(Sketcher.Constraint("DistanceX", 4, 3, -1, 1, Q("0.000188 mm")))
sketch1.addConstraint(Sketcher.Constraint("DistanceY", 12, 3, -1, 1, Q("0.000188 mm")))
sketch1.addConstraint(Sketcher.Constraint("DistanceY", -1, 1, 16, 3, Q("0.000135 mm")))
sketch1.setExpression("Constraints[196]", "Params.sketch1_width")
sketch1.setExpression("Constraints[204]", "Params.sketch1_length")
pad1 = doc.addObject("PartDesign::Pad", "Pad")
body.addObject(pad1)
pad1.Profile = sketch1
pad1.setExpression("Length", "Params.pad1_length")
doc.recompute()

chamfer = doc.addObject("PartDesign::Chamfer", "Chamfer")
body.addObject(chamfer)
chamfer.Base = (pad1, edges_at(pad1, [(66.844, -12.5, 99.659), (74.125, -12.5, 94.369)]))
chamfer.setExpression("Size", "Params.chamfer_size")
doc.recompute()

chamfer2 = doc.addObject("PartDesign::Chamfer", "Chamfer001")
body.addObject(chamfer2)
chamfer2.Base = (chamfer, edges_at(chamfer, [
    (94.369, -12.5, 74.125),
    (99.659, -12.5, 66.844),
    (112.656, -12.5, 41.336),
    (115.437, -12.5, 32.776),
    (119.916, -12.5, 4.5),
    (119.916, -12.5, -4.5),
    (115.437, -12.5, -32.776),
    (112.656, -12.5, -41.336),
    (99.659, -12.5, -66.844),
    (94.369, -12.5, -74.125),
    (74.125, -12.5, -94.369),
    (66.844, -12.5, -99.659),
    (41.336, -12.5, -112.656),
    (32.776, -12.5, -115.437),
]))
chamfer2.setExpression("Size", "Params.chamfer2_size")
doc.recompute()

chamfer3 = doc.addObject("PartDesign::Chamfer", "Chamfer002")
body.addObject(chamfer3)
chamfer3.Base = (chamfer2, edges_at(chamfer2, [
    (4.5, -12.5, -119.916),
    (-4.5, -12.5, -119.916),
    (-32.776, -12.5, -115.437),
    (-41.336, -12.5, -112.656),
    (-66.844, -12.5, -99.659),
    (-74.125, -12.5, -94.369),
    (-94.369, -12.5, -74.125),
    (-99.659, -12.5, -66.844),
    (-112.656, -12.5, -41.336),
    (-115.437, -12.5, -32.776),
    (-119.916, -12.5, -4.5),
    (-119.916, -12.5, 4.5),
    (-115.437, -12.5, 32.776),
    (-112.656, -12.5, 41.336),
    (-99.659, -12.5, 66.844),
    (-94.369, -12.5, 74.125),
    (-74.125, -12.5, 94.369),
    (-66.844, -12.5, 99.659),
]))
chamfer3.setExpression("Size", "Params.chamfer3_size")
doc.recompute()

chamfer4 = doc.addObject("PartDesign::Chamfer", "Chamfer003")
body.addObject(chamfer4)
chamfer4.Base = (chamfer3, edges_at(chamfer3, [
    (-41.336, -12.5, 112.656),
    (-32.776, -12.5, 115.437),
    (-4.5, -12.5, 119.916),
    (4.5, -12.5, 119.916),
    (32.776, -12.5, 115.437),
    (41.336, -12.5, 112.656),
]))
chamfer4.setExpression("Size", "Params.chamfer4_size")
doc.recompute()

fillet = doc.addObject("PartDesign::Fillet", "Fillet")
body.addObject(fillet)
fillet.Base = (chamfer4, edges_at(chamfer4, [
    (-50.42, -12.5, 86.359),
    (-40.23, -12.5, 91.551),
    (-21.266, -12.5, 97.713),
    (-9.97, -12.5, 99.502),
    (9.97, -12.5, 99.502),
    (21.266, -12.5, 97.713),
    (40.23, -12.5, 91.551),
    (50.42, -12.5, 86.359),
    (66.551, -12.5, 74.638),
    (74.638, -12.5, 66.551),
    (86.359, -12.5, 50.42),
    (91.551, -12.5, 40.23),
    (97.713, -12.5, 21.266),
    (99.502, -12.5, 9.97),
    (99.502, -12.5, -9.97),
    (97.713, -12.5, -21.266),
    (91.551, -12.5, -40.23),
    (86.359, -12.5, -50.42),
    (74.638, -12.5, -66.551),
    (66.551, -12.5, -74.638),
    (50.42, -12.5, -86.359),
    (40.23, -12.5, -91.551),
    (21.266, -12.5, -97.713),
    (9.97, -12.5, -99.502),
    (-9.97, -12.5, -99.502),
    (-21.266, -12.5, -97.713),
    (-40.23, -12.5, -91.551),
    (-50.42, -12.5, -86.359),
    (-66.551, -12.5, -74.638),
    (-74.638, -12.5, -66.551),
    (-86.359, -12.5, -50.42),
    (-91.551, -12.5, -40.23),
    (-97.713, -12.5, -21.266),
    (-99.502, -12.5, -9.97),
    (-99.502, -12.5, 9.97),
    (-97.713, -12.5, 21.266),
    (-91.551, -12.5, 40.23),
    (-86.359, -12.5, 50.42),
    (-74.638, -12.5, 66.551),
    (-66.551, -12.5, 74.638),
]))
fillet.setExpression("Radius", "Params.fillet_radius")

doc.recompute()
